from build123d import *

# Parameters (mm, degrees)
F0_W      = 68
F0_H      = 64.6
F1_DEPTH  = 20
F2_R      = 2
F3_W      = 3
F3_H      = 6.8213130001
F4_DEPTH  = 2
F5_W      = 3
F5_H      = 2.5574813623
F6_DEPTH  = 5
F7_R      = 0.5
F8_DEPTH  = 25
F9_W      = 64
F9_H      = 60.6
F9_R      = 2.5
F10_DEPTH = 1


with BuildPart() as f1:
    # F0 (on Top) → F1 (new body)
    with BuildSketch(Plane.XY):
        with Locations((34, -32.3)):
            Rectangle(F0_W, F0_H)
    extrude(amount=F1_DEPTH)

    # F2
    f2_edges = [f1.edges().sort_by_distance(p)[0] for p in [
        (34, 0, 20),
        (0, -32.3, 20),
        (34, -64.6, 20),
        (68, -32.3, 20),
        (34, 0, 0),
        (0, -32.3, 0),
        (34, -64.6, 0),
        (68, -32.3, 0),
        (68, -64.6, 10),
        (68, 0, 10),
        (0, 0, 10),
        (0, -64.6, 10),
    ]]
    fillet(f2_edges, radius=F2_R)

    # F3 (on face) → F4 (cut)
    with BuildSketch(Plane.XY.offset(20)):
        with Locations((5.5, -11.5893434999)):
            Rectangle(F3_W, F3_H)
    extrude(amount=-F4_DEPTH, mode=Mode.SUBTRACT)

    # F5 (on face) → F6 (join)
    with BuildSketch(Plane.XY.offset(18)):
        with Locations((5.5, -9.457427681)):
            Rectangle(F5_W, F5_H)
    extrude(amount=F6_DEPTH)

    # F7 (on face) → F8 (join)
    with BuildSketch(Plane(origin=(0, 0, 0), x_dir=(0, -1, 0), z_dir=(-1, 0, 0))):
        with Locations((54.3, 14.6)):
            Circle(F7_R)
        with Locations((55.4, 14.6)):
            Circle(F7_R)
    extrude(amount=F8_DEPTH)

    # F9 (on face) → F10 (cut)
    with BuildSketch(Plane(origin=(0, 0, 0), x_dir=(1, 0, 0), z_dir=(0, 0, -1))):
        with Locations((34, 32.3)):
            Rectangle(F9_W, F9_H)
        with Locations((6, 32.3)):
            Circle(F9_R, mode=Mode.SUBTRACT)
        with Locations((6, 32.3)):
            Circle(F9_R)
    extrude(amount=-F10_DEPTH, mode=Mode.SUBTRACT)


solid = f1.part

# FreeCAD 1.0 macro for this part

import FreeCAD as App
import Part
import Sketcher

V = App.Vector


def add_polygon(sketch, points):
    """Adds a closed chain of lines whose ends are joined by coincident constraints."""
    first, n = sketch.GeometryCount, len(points)
    for a, b in zip(points, points[1:] + points[:1]):
        sketch.addGeometry(Part.LineSegment(App.Vector(*a, 0), App.Vector(*b, 0)), False)
    for i in range(n):
        sketch.addConstraint(Sketcher.Constraint("Coincident", first + i, 2, first + (i + 1) % n, 1))

doc = App.newDocument("Part")
body = doc.addObject("PartDesign::Body", "Body")

sketch1 = body.newObject("Sketcher::SketchObject", "Sketch")
sketch1.AttachmentSupport = (doc.getObject("XY_Plane"), [""])
sketch1.MapMode = "FlatFace"
add_polygon(sketch1, [(0, 0), (0, -65), (68, -65), (68, 0)])
sketch1.addConstraint(Sketcher.Constraint("Vertical", 0))
sketch1.addConstraint(Sketcher.Constraint("Horizontal", 1))
sketch1.addConstraint(Sketcher.Constraint("Vertical", 2))
sketch1.addConstraint(Sketcher.Constraint("Horizontal", 3))
sketch1.addConstraint(Sketcher.Constraint("Coincident", 3, 2, -1, 1))
sketch1.addConstraint(Sketcher.Constraint("DistanceX", 1, 1, 1, 2, 68.0))
sketch1.addConstraint(Sketcher.Constraint("DistanceY", 0, 2, 0, 1, 64.6))
pad1 = body.newObject("PartDesign::Pad", "Pad")
pad1.Profile = sketch1
pad1.Length = 20
doc.recompute()

fillet = body.newObject("PartDesign::Fillet", "Fillet")
fillet.Base = (pad1, ["Edge1"])
fillet.UseAllEdges = True
fillet.Radius = 2

sketch2 = body.newObject("Sketcher::SketchObject", "Sketch001")
sketch2.AttachmentSupport = (doc.getObject("XY_Plane"), [""])
sketch2.MapMode = "FlatFace"
sketch2.AttachmentOffset = App.Placement(V(0, 0, 20), App.Rotation())
add_polygon(sketch2, [(4, -8.2), (4, -15), (7, -15), (7, -8.2)])
sketch2.addConstraint(Sketcher.Constraint("Vertical", 0))
sketch2.addConstraint(Sketcher.Constraint("Horizontal", 1))
sketch2.addConstraint(Sketcher.Constraint("Vertical", 2))
sketch2.addConstraint(Sketcher.Constraint("Horizontal", 3))
sketch2.addConstraint(Sketcher.Constraint("DistanceX", 1, 1, 1, 2, 3.0))
sketch2.addConstraint(Sketcher.Constraint("DistanceX", -1, 1, 0, 2, 4.0))
sketch2.addConstraint(Sketcher.Constraint("DistanceY", 0, 2, -1, 1, 15.0))
sketch2.addConstraint(Sketcher.Constraint("DistanceY", 0, 2, 0, 1, 6.821313))
pocket1 = body.newObject("PartDesign::Pocket", "Pocket")
pocket1.Profile = sketch2
pocket1.Length = 2

sketch3 = body.newObject("Sketcher::SketchObject", "Sketch002")
sketch3.AttachmentSupport = (doc.getObject("XY_Plane"), [""])
sketch3.MapMode = "FlatFace"
sketch3.AttachmentOffset = App.Placement(V(0, 0, 18), App.Rotation())
add_polygon(sketch3, [(4, -8.2), (4, -10.7), (7, -10.7), (7, -8.2)])
sketch3.addConstraint(Sketcher.Constraint("Vertical", 0))
sketch3.addConstraint(Sketcher.Constraint("Horizontal", 1))
sketch3.addConstraint(Sketcher.Constraint("Vertical", 2))
sketch3.addConstraint(Sketcher.Constraint("Horizontal", 3))
sketch3.addConstraint(Sketcher.Constraint("DistanceX", 1, 1, 1, 2, 3.0))
sketch3.addConstraint(Sketcher.Constraint("DistanceX", -1, 1, 0, 2, 4.0))
sketch3.addConstraint(Sketcher.Constraint("DistanceY", 0, 2, 0, 1, 2.557481))
sketch3.addConstraint(Sketcher.Constraint("DistanceY", 0, 2, -1, 1, 10.736168))
pad2 = body.newObject("PartDesign::Pad", "Pad001")
pad2.Profile = sketch3
pad2.Length = 5

sketch4 = body.newObject("Sketcher::SketchObject", "Sketch003")
sketch4.AttachmentSupport = (doc.getObject("YZ_Plane"), [""])
sketch4.MapMode = "FlatFace"
sketch4.addGeometry(Part.Circle(V(-54.3, 14.6, 0), V(0, 0, 1), 0.5), False)
sketch4.addGeometry(Part.Circle(V(-55.4, 14.6, 0), V(0, 0, 1), 0.5), False)
sketch4.addConstraint(Sketcher.Constraint("Equal", 0, 1))
sketch4.addConstraint(Sketcher.Constraint("Horizontal", 0, 3, 1, 3))
sketch4.addConstraint(Sketcher.Constraint("Diameter", 0, 1.0))
sketch4.addConstraint(Sketcher.Constraint("DistanceX", 0, 3, -1, 1, 54.3))
sketch4.addConstraint(Sketcher.Constraint("DistanceY", -1, 1, 0, 3, 14.6))
sketch4.addConstraint(Sketcher.Constraint("DistanceX", 1, 3, -1, 1, 55.4))
pad3 = body.newObject("PartDesign::Pad", "Pad002")
pad3.Profile = sketch4
pad3.Length = 25
pad3.Reversed = True

sketch5 = body.newObject("Sketcher::SketchObject", "Sketch004")
sketch5.AttachmentSupport = (doc.getObject("XY_Plane"), [""])
sketch5.MapMode = "FlatFace"
add_polygon(sketch5, [(2, -63), (2, -2), (66, -2), (66, -63)])
sketch5.addConstraint(Sketcher.Constraint("Vertical", 0))
sketch5.addConstraint(Sketcher.Constraint("Horizontal", 1))
sketch5.addConstraint(Sketcher.Constraint("Vertical", 2))
sketch5.addConstraint(Sketcher.Constraint("Horizontal", 3))
sketch5.addConstraint(Sketcher.Constraint("DistanceX", 1, 1, 1, 2, 64.0))
sketch5.addConstraint(Sketcher.Constraint("DistanceY", 0, 1, 0, 2, 60.6))
sketch5.addConstraint(Sketcher.Constraint("DistanceX", -1, 1, 0, 2, 2.0))
sketch5.addConstraint(Sketcher.Constraint("DistanceY", 0, 2, -1, 1, 2.0))
pocket2 = body.newObject("PartDesign::Pocket", "Pocket001")
pocket2.Profile = sketch5
pocket2.Length = 1
pocket2.Reversed = True

doc.recompute()
